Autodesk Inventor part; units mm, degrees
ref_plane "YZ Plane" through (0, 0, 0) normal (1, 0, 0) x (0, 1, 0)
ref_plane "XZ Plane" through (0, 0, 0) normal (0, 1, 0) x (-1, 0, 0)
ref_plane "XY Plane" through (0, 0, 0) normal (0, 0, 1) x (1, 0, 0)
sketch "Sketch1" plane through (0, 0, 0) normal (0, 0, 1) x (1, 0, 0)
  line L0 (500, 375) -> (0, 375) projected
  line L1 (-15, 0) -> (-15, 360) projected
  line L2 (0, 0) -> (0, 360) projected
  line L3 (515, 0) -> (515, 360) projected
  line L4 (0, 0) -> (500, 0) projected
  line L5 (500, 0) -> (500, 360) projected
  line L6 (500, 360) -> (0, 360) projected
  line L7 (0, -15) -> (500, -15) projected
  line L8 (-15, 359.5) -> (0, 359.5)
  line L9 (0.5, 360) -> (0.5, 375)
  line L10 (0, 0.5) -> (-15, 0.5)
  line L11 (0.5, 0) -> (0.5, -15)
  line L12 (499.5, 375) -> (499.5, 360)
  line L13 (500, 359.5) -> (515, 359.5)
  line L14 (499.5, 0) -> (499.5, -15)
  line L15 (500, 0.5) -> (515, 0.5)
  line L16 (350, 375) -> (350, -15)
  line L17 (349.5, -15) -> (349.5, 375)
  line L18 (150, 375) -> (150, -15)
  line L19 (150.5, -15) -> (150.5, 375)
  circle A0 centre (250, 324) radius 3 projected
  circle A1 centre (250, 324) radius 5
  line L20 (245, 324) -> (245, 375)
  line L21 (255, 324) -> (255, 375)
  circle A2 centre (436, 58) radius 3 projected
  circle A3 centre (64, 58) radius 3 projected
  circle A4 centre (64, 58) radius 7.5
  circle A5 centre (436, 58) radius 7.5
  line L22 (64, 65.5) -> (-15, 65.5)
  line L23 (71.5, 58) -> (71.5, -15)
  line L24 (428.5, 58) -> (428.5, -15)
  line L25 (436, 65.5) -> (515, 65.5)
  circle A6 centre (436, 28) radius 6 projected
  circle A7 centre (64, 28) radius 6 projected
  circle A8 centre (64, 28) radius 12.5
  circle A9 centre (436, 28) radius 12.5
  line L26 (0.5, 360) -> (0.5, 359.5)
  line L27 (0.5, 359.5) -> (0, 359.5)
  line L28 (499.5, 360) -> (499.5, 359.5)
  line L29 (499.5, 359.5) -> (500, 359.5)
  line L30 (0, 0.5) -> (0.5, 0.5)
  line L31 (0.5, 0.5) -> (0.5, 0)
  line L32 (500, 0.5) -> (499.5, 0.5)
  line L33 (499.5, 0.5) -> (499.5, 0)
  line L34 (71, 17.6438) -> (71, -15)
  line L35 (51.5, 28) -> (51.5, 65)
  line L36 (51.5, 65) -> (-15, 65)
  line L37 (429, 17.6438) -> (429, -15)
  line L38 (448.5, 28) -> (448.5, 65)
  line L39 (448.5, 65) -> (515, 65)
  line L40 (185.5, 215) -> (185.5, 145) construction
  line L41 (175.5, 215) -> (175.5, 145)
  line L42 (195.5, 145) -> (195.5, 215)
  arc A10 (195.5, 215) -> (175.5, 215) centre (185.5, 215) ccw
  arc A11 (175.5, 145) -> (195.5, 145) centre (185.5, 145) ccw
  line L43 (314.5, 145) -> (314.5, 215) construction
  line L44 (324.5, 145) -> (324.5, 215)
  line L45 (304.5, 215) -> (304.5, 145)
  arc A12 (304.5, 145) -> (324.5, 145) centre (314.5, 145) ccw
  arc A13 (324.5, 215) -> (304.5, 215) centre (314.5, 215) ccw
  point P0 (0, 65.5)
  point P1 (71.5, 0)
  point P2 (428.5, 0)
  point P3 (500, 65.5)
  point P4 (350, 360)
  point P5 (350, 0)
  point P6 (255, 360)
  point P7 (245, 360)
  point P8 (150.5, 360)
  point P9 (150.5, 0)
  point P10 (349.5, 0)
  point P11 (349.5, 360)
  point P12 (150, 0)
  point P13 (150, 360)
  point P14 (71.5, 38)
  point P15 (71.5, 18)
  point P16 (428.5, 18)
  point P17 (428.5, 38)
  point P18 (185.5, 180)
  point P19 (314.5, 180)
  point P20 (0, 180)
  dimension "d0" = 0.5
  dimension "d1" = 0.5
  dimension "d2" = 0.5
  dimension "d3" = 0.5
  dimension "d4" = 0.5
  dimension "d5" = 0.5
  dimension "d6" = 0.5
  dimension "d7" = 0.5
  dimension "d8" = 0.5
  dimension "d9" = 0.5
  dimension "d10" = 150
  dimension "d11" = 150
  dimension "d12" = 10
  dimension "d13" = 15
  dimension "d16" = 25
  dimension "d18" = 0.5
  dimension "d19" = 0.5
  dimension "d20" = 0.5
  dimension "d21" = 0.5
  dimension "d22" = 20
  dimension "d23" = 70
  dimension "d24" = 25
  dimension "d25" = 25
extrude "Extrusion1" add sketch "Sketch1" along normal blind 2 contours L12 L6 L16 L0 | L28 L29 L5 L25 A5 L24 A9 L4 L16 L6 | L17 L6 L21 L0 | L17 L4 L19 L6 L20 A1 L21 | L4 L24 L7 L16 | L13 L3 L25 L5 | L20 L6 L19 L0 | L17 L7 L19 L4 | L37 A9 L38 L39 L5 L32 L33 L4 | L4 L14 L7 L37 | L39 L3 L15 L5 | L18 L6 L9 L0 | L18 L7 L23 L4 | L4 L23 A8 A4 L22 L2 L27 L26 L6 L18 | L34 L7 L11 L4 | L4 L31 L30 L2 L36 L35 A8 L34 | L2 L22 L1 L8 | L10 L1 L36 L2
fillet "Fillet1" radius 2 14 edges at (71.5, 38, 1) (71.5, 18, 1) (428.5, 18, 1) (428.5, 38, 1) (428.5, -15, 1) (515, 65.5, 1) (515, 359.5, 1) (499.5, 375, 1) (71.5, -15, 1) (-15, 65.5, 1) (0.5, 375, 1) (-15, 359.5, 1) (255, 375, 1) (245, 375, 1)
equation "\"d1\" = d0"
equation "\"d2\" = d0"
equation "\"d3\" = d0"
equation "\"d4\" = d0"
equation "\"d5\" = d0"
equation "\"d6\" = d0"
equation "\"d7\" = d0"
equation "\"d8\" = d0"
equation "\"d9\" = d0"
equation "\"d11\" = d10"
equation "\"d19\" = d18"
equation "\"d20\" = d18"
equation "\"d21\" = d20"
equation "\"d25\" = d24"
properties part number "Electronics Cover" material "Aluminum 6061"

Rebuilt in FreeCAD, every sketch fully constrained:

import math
import FreeCAD as App
import Part
import Sketcher
from FreeCAD import Vector
Q = App.Units.Quantity


def edges_at(feature, points):
    """Names of the edges that pass closest to the given points."""
    edges = feature.Shape.Edges
    near = lambda p: min(range(len(edges)), key=lambda i: edges[i].distToShape(Part.Vertex(*p))[0])
    return sorted({f"Edge{near(p) + 1}" for p in points})

doc = App.newDocument("Part")
body = doc.addObject("PartDesign::Body", "Body")
body.AllowCompound = True

sketch1 = body.newObject("Sketcher::SketchObject", "Sketch")
sketch1.AttachmentSupport = (doc.getObject("XY_Plane"), [""])
sketch1.MapMode = "FlatFace"
sketch1.addGeometry(Part.LineSegment(Vector(499.5, 375, 0), Vector(350, 375, 0)), False)
sketch1.addGeometry(Part.LineSegment(Vector(350, 375, 0), Vector(350, -15, 0)), False)
sketch1.addGeometry(Part.LineSegment(Vector(350, -15, 0), Vector(428.5, -15, 0)), False)
sketch1.addGeometry(Part.LineSegment(Vector(428.5, -15, 0), Vector(428.5, 18, 0)), False)
sketch1.addGeometry(Part.ArcOfCircle(Part.Circle(Vector(436, 28, 0), Vector(0, 0, 1), 12.5), math.radians(126.869898), math.radians(233.130102)), False)
sketch1.addGeometry(Part.LineSegment(Vector(428.5, 38, 0), Vector(428.5, 58, 0)), False)
sketch1.addGeometry(Part.ArcOfCircle(Part.Circle(Vector(436, 58, 0), Vector(0, 0, 1), 7.5), math.radians(90), math.radians(180)), False)
sketch1.addGeometry(Part.LineSegment(Vector(436, 65.5, 0), Vector(515, 65.5, 0)), False)
sketch1.addGeometry(Part.LineSegment(Vector(515, 65.5, 0), Vector(515, 359.5, 0)), False)
sketch1.addGeometry(Part.LineSegment(Vector(515, 359.5, 0), Vector(499.5, 359.5, 0)), False)
sketch1.addGeometry(Part.LineSegment(Vector(499.5, 359.5, 0), Vector(499.5, 375, 0)), False)
sketch1.addGeometry(Part.LineSegment(Vector(349.5, 375, 0), Vector(255, 375, 0)), False)
sketch1.addGeometry(Part.LineSegment(Vector(255, 375, 0), Vector(255, 324, 0)), False)
sketch1.addGeometry(Part.ArcOfCircle(Part.Circle(Vector(250, 324, 0), Vector(0, 0, 1), 5), math.radians(180), math.radians(360)), False)
sketch1.addGeometry(Part.LineSegment(Vector(245, 324, 0), Vector(245, 375, 0)), False)
sketch1.addGeometry(Part.LineSegment(Vector(245, 375, 0), Vector(150.5, 375, 0)), False)
sketch1.addGeometry(Part.LineSegment(Vector(150.5, 375, 0), Vector(150.5, -15, 0)), False)
sketch1.addGeometry(Part.LineSegment(Vector(150.5, -15, 0), Vector(349.5, -15, 0)), False)
sketch1.addGeometry(Part.LineSegment(Vector(349.5, -15, 0), Vector(349.5, 375, 0)), False)
sketch1.addGeometry(Part.ArcOfCircle(Part.Circle(Vector(314.5, 145, 0), Vector(0, 0, 1), 10), math.radians(180), math.radians(360)), False)
sketch1.addGeometry(Part.LineSegment(Vector(304.5, 145, 0), Vector(304.5, 215, 0)), False)
sketch1.addGeometry(Part.ArcOfCircle(Part.Circle(Vector(314.5, 215, 0), Vector(0, 0, 1), 10), math.radians(0), math.radians(180)), False)
sketch1.addGeometry(Part.LineSegment(Vector(324.5, 215, 0), Vector(324.5, 145, 0)), False)
sketch1.addGeometry(Part.LineSegment(Vector(175.5, 145, 0), Vector(175.5, 215, 0)), False)
sketch1.addGeometry(Part.ArcOfCircle(Part.Circle(Vector(185.5, 215, 0), Vector(0, 0, 1), 10), math.radians(0), math.radians(180)), False)
sketch1.addGeometry(Part.LineSegment(Vector(195.5, 215, 0), Vector(195.5, 145, 0)), False)
sketch1.addGeometry(Part.ArcOfCircle(Part.Circle(Vector(185.5, 145, 0), Vector(0, 0, 1), 10), math.radians(180), math.radians(360)), False)
sketch1.addGeometry(Part.LineSegment(Vector(429, 17.6438, 0), Vector(429, -15, 0)), False)
sketch1.addGeometry(Part.LineSegment(Vector(429, -15, 0), Vector(499.5, -15, 0)), False)
sketch1.addGeometry(Part.LineSegment(Vector(499.5, -15, 0), Vector(499.5, 0.5, 0)), False)
sketch1.addGeometry(Part.LineSegment(Vector(499.5, 0.5, 0), Vector(515, 0.5, 0)), False)
sketch1.addGeometry(Part.LineSegment(Vector(515, 0.5, 0), Vector(515, 65, 0)), False)
sketch1.addGeometry(Part.LineSegment(Vector(515, 65, 0), Vector(448.5, 65, 0)), False)
sketch1.addGeometry(Part.LineSegment(Vector(448.5, 65, 0), Vector(448.5, 28, 0)), False)
sketch1.addGeometry(Part.ArcOfCircle(Part.Circle(Vector(436, 28, 0), Vector(0, 0, 1), 12.5), math.radians(-124.055689), math.radians(0)), False)
sketch1.addGeometry(Part.LineSegment(Vector(150, 375, 0), Vector(0.5, 375, 0)), False)
sketch1.addGeometry(Part.LineSegment(Vector(0.5, 375, 0), Vector(0.5, 359.5, 0)), False)
sketch1.addGeometry(Part.LineSegment(Vector(0.5, 359.5, 0), Vector(-15, 359.5, 0)), False)
sketch1.addGeometry(Part.LineSegment(Vector(-15, 359.5, 0), Vector(-15, 65.5, 0)), False)
sketch1.addGeometry(Part.LineSegment(Vector(-15, 65.5, 0), Vector(64, 65.5, 0)), False)
sketch1.addGeometry(Part.ArcOfCircle(Part.Circle(Vector(64, 58, 0), Vector(0, 0, 1), 7.5), math.radians(0), math.radians(90)), False)
sketch1.addGeometry(Part.LineSegment(Vector(71.5, 58, 0), Vector(71.5, 38, 0)), False)
sketch1.addGeometry(Part.ArcOfCircle(Part.Circle(Vector(64, 28, 0), Vector(0, 0, 1), 12.5), math.radians(-53.130102), math.radians(53.130102)), False)
sketch1.addGeometry(Part.LineSegment(Vector(71.5, 18, 0), Vector(71.5, -15, 0)), False)
sketch1.addGeometry(Part.LineSegment(Vector(71.5, -15, 0), Vector(150, -15, 0)), False)
sketch1.addGeometry(Part.LineSegment(Vector(150, -15, 0), Vector(150, 375, 0)), False)
sketch1.addGeometry(Part.LineSegment(Vector(71, -15, 0), Vector(71, 17.6438, 0)), False)
sketch1.addGeometry(Part.ArcOfCircle(Part.Circle(Vector(64, 28, 0), Vector(0, 0, 1), 12.5), math.radians(180), math.radians(304.055689)), False)
sketch1.addGeometry(Part.LineSegment(Vector(51.5, 28, 0), Vector(51.5, 65, 0)), False)
sketch1.addGeometry(Part.LineSegment(Vector(51.5, 65, 0), Vector(-15, 65, 0)), False)
sketch1.addGeometry(Part.LineSegment(Vector(-15, 65, 0), Vector(-15, 0.5, 0)), False)
sketch1.addGeometry(Part.LineSegment(Vector(-15, 0.5, 0), Vector(0.5, 0.5, 0)), False)
sketch1.addGeometry(Part.LineSegment(Vector(0.5, 0.5, 0), Vector(0.5, -15, 0)), False)
sketch1.addGeometry(Part.LineSegment(Vector(0.5, -15, 0), Vector(71, -15, 0)), False)
sketch1.addConstraint(Sketcher.Constraint("Coincident", 0, 2, 1, 1))
sketch1.addConstraint(Sketcher.Constraint("Coincident", 1, 2, 2, 1))
sketch1.addConstraint(Sketcher.Constraint("Coincident", 2, 2, 3, 1))
sketch1.addConstraint(Sketcher.Constraint("Coincident", 3, 2, 4, 2))
sketch1.addConstraint(Sketcher.Constraint("Coincident", 4, 1, 5, 1))
sketch1.addConstraint(Sketcher.Constraint("Tangent", 5, 2, 6, 2))
sketch1.addConstraint(Sketcher.Constraint("Tangent", 6, 1, 7, 1))
sketch1.addConstraint(Sketcher.Constraint("Coincident", 7, 2, 8, 1))
sketch1.addConstraint(Sketcher.Constraint("Coincident", 8, 2, 9, 1))
sketch1.addConstraint(Sketcher.Constraint("Coincident", 9, 2, 10, 1))
sketch1.addConstraint(Sketcher.Constraint("Coincident", 10, 2, 0, 1))
sketch1.addConstraint(Sketcher.Constraint("Coincident", 11, 2, 12, 1))
sketch1.addConstraint(Sketcher.Constraint("Tangent", 12, 2, 13, 2))
sketch1.addConstraint(Sketcher.Constraint("Tangent", 13, 1, 14, 1))
sketch1.addConstraint(Sketcher.Constraint("Coincident", 14, 2, 15, 1))
sketch1.addConstraint(Sketcher.Constraint("Coincident", 15, 2, 16, 1))
sketch1.addConstraint(Sketcher.Constraint("Coincident", 16, 2, 17, 1))
sketch1.addConstraint(Sketcher.Constraint("Coincident", 17, 2, 18, 1))
sketch1.addConstraint(Sketcher.Constraint("Coincident", 18, 2, 11, 1))
sketch1.addConstraint(Sketcher.Constraint("Tangent", 19, 1, 20, 1))
sketch1.addConstraint(Sketcher.Constraint("Tangent", 20, 2, 21, 2))
sketch1.addConstraint(Sketcher.Constraint("Tangent", 21, 1, 22, 1))
sketch1.addConstraint(Sketcher.Constraint("Tangent", 22, 2, 19, 2))
sketch1.addConstraint(Sketcher.Constraint("Tangent", 23, 2, 24, 2))
sketch1.addConstraint(Sketcher.Constraint("Tangent", 24, 1, 25, 1))
sketch1.addConstraint(Sketcher.Constraint("Tangent", 25, 2, 26, 2))
sketch1.addConstraint(Sketcher.Constraint("Tangent", 26, 1, 23, 1))
sketch1.addConstraint(Sketcher.Constraint("Coincident", 27, 2, 28, 1))
sketch1.addConstraint(Sketcher.Constraint("Coincident", 28, 2, 29, 1))
sketch1.addConstraint(Sketcher.Constraint("Coincident", 29, 2, 30, 1))
sketch1.addConstraint(Sketcher.Constraint("Coincident", 30, 2, 31, 1))
sketch1.addConstraint(Sketcher.Constraint("Coincident", 31, 2, 32, 1))
sketch1.addConstraint(Sketcher.Constraint("Coincident", 32, 2, 33, 1))
sketch1.addConstraint(Sketcher.Constraint("Tangent", 33, 2, 34, 2))
sketch1.addConstraint(Sketcher.Constraint("Coincident", 34, 1, 27, 1))
sketch1.addConstraint(Sketcher.Constraint("Coincident", 35, 2, 36, 1))
sketch1.addConstraint(Sketcher.Constraint("Coincident", 36, 2, 37, 1))
sketch1.addConstraint(Sketcher.Constraint("Coincident", 37, 2, 38, 1))
sketch1.addConstraint(Sketcher.Constraint("Coincident", 38, 2, 39, 1))
sketch1.addConstraint(Sketcher.Constraint("Tangent", 39, 2, 40, 2))
sketch1.addConstraint(Sketcher.Constraint("Tangent", 40, 1, 41, 1))
sketch1.addConstraint(Sketcher.Constraint("Coincident", 41, 2, 42, 2))
sketch1.addConstraint(Sketcher.Constraint("Coincident", 42, 1, 43, 1))
sketch1.addConstraint(Sketcher.Constraint("Coincident", 43, 2, 44, 1))
sketch1.addConstraint(Sketcher.Constraint("Coincident", 44, 2, 45, 1))
sketch1.addConstraint(Sketcher.Constraint("Coincident", 45, 2, 35, 1))
sketch1.addConstraint(Sketcher.Constraint("Coincident", 46, 2, 47, 2))
sketch1.addConstraint(Sketcher.Constraint("Tangent", 47, 1, 48, 1))
sketch1.addConstraint(Sketcher.Constraint("Coincident", 48, 2, 49, 1))
sketch1.addConstraint(Sketcher.Constraint("Coincident", 49, 2, 50, 1))
sketch1.addConstraint(Sketcher.Constraint("Coincident", 50, 2, 51, 1))
sketch1.addConstraint(Sketcher.Constraint("Coincident", 51, 2, 52, 1))
sketch1.addConstraint(Sketcher.Constraint("Coincident", 52, 2, 53, 1))
sketch1.addConstraint(Sketcher.Constraint("Coincident", 53, 2, 46, 1))
sketch1.addConstraint(Sketcher.Constraint("Horizontal", 0))
sketch1.addConstraint(Sketcher.Constraint("Vertical", 1))
sketch1.addConstraint(Sketcher.Constraint("Horizontal", 2))
sketch1.addConstraint(Sketcher.Constraint("Vertical", 3))
sketch1.addConstraint(Sketcher.Constraint("Vertical", 5))
sketch1.addConstraint(Sketcher.Constraint("Horizontal", 7))
sketch1.addConstraint(Sketcher.Constraint("Vertical", 8))
sketch1.addConstraint(Sketcher.Constraint("Horizontal", 9))
sketch1.addConstraint(Sketcher.Constraint("Vertical", 10))
sketch1.addConstraint(Sketcher.Constraint("Horizontal", 11))
sketch1.addConstraint(Sketcher.Constraint("Vertical", 12))
sketch1.addConstraint(Sketcher.Constraint("Vertical", 14))
sketch1.addConstraint(Sketcher.Constraint("Horizontal", 15))
sketch1.addConstraint(Sketcher.Constraint("Vertical", 16))
sketch1.addConstraint(Sketcher.Constraint("Horizontal", 17))
sketch1.addConstraint(Sketcher.Constraint("Vertical", 18))
sketch1.addConstraint(Sketcher.Constraint("Vertical", 20))
sketch1.addConstraint(Sketcher.Constraint("Vertical", 22))
sketch1.addConstraint(Sketcher.Constraint("Vertical", 23))
sketch1.addConstraint(Sketcher.Constraint("Vertical", 25))
sketch1.addConstraint(Sketcher.Constraint("Vertical", 27))
sketch1.addConstraint(Sketcher.Constraint("Horizontal", 28))
sketch1.addConstraint(Sketcher.Constraint("Vertical", 29))
sketch1.addConstraint(Sketcher.Constraint("Horizontal", 30))
sketch1.addConstraint(Sketcher.Constraint("Vertical", 31))
sketch1.addConstraint(Sketcher.Constraint("Horizontal", 32))
sketch1.addConstraint(Sketcher.Constraint("Vertical", 33))
sketch1.addConstraint(Sketcher.Constraint("Horizontal", 35))
sketch1.addConstraint(Sketcher.Constraint("Vertical", 36))
sketch1.addConstraint(Sketcher.Constraint("Horizontal", 37))
sketch1.addConstraint(Sketcher.Constraint("Vertical", 38))
sketch1.addConstraint(Sketcher.Constraint("Horizontal", 39))
sketch1.addConstraint(Sketcher.Constraint("Vertical", 41))
sketch1.addConstraint(Sketcher.Constraint("Vertical", 43))
sketch1.addConstraint(Sketcher.Constraint("Horizontal", 44))
sketch1.addConstraint(Sketcher.Constraint("Vertical", 45))
sketch1.addConstraint(Sketcher.Constraint("Vertical", 46))
sketch1.addConstraint(Sketcher.Constraint("Vertical", 48))
sketch1.addConstraint(Sketcher.Constraint("Horizontal", 49))
sketch1.addConstraint(Sketcher.Constraint("Vertical", 50))
sketch1.addConstraint(Sketcher.Constraint("Horizontal", 51))
sketch1.addConstraint(Sketcher.Constraint("Vertical", 52))
sketch1.addConstraint(Sketcher.Constraint("Horizontal", 53))
sketch1.addConstraint(Sketcher.Constraint("Coincident", 34, 3, 4, 3))
sketch1.addConstraint(Sketcher.Constraint("Coincident", 47, 3, 42, 3))
sketch1.addConstraint(Sketcher.Constraint("Equal", 21, 24))
sketch1.addConstraint(Sketcher.Constraint("Equal", 4, 34))
sketch1.addConstraint(Sketcher.Constraint("Equal", 6, 40))
sketch1.addConstraint(Sketcher.Constraint("Equal", 34, 42))
sketch1.addConstraint(Sketcher.Constraint("Equal", 42, 47))
sketch1.addConstraint(Sketcher.Constraint("Horizontal", 21, 3, 24, 3))
sketch1.addConstraint(Sketcher.Constraint("Horizontal", 19, 3, 26, 3))
sketch1.addConstraint(Sketcher.Constraint("Horizontal", 6, 3, 40, 3))
sketch1.addConstraint(Sketcher.Constraint("Horizontal", 34, 3, 42, 3))
sketch1.addConstraint(Sketcher.Constraint("Horizontal", 10, 2, 11, 2))
sketch1.addConstraint(Sketcher.Constraint("Horizontal", 11, 2, 14, 2))
sketch1.addConstraint(Sketcher.Constraint("Horizontal", 2, 2, 16, 2))
sketch1.addConstraint(Sketcher.Constraint("Horizontal", 17, 2, 27, 2))
sketch1.addConstraint(Sketcher.Constraint("Horizontal", 18, 2, 35, 2))
sketch1.addConstraint(Sketcher.Constraint("Horizontal", 9, 2, 36, 2))
sketch1.addConstraint(Sketcher.Constraint("Horizontal", 4, 1, 41, 2))
sketch1.addConstraint(Sketcher.Constraint("Horizontal", 3, 2, 42, 1))
sketch1.addConstraint(Sketcher.Constraint("Horizontal", 28, 2, 43, 2))
sketch1.addConstraint(Sketcher.Constraint("Horizontal", 34, 1, 46, 2))
sketch1.addConstraint(Sketcher.Constraint("Horizontal", 32, 2, 48, 2))
sketch1.addConstraint(Sketcher.Constraint("Horizontal", 30, 2, 50, 2))
sketch1.addConstraint(Sketcher.Constraint("Horizontal", 44, 2, 52, 2))
sketch1.addConstraint(Sketcher.Constraint("Vertical", 4, 3, 6, 3))
sketch1.addConstraint(Sketcher.Constraint("Vertical", 3, 2, 4, 1))
sketch1.addConstraint(Sketcher.Constraint("Vertical", 10, 2, 28, 2))
sketch1.addConstraint(Sketcher.Constraint("Vertical", 8, 2, 30, 2))
sketch1.addConstraint(Sketcher.Constraint("Vertical", 38, 2, 49, 2))
sketch1.addConstraint(Sketcher.Constraint("Vertical", 36, 2, 51, 2))
sketch1.addConstraint(Sketcher.Constraint("Equal", 11, 15))
sketch1.addConstraint(Sketcher.Constraint("Equal", 0, 35))
sketch1.addConstraint(Sketcher.Constraint("Equal", 30, 37))
sketch1.addConstraint(Sketcher.Constraint("Equal", 7, 39))
sketch1.addConstraint(Sketcher.Constraint("Equal", 51, 10))
sketch1.addConstraint(Sketcher.Constraint("Equal", 10, 29))
sketch1.addConstraint(Sketcher.Constraint("Radius", 13, Q("5 mm")))
sketch1.addConstraint(Sketcher.Constraint("Radius", 19, Q("10 mm")))
sketch1.addConstraint(Sketcher.Constraint("Radius", 4, Q("12.5 mm")))
sketch1.addConstraint(Sketcher.Constraint("Radius", 6, Q("7.5 mm")))
sketch1.addConstraint(Sketcher.Constraint("DistanceY", 5, 1, 5, 2, Q("20 mm")))
sketch1.addConstraint(Sketcher.Constraint("DistanceY", 20, 1, 20, 2, Q("70 mm")))
sketch1.addConstraint(Sketcher.Constraint("DistanceY", 1, 2, -1, 1, Q("15 mm")))
sketch1.addConstraint(Sketcher.Constraint("DistanceX", 37, 2, -1, 1, Q("15 mm")))
sketch1.addConstraint(Sketcher.Constraint("DistanceX", -1, 1, 44, 2, Q("150 mm")))
sketch1.addConstraint(Sketcher.Constraint("DistanceY", -1, 1, 29, 2, Q("0.5 mm")))
sketch1.addConstraint(Sketcher.Constraint("DistanceX", 7, 1, 7, 2, Q("79 mm")))
sketch1.addConstraint(Sketcher.Constraint("DistanceX", 17, 1, 17, 2, Q("199 mm")))
sketch1.addConstraint(Sketcher.Constraint("DistanceY", 1, 2, 1, 1, Q("390 mm")))
sketch1.addConstraint(Sketcher.Constraint("DistanceY", 3, 1, 3, 2, Q("33 mm")))
sketch1.addConstraint(Sketcher.Constraint("DistanceY", 12, 2, 12, 1, Q("51 mm")))
sketch1.addConstraint(Sketcher.Constraint("DistanceY", 33, 2, 33, 1, Q("37 mm")))
sketch1.addConstraint(Sketcher.Constraint("DistanceX", 28, 1, 28, 2, Q("70.5 mm")))
sketch1.addConstraint(Sketcher.Constraint("DistanceX", -1, 1, 4, 3, Q("436 mm")))
sketch1.addConstraint(Sketcher.Constraint("DistanceX", -1, 1, 13, 3, Q("250 mm")))
sketch1.addConstraint(Sketcher.Constraint("DistanceY", -1, 1, 19, 3, Q("145 mm")))
sketch1.addConstraint(Sketcher.Constraint("DistanceX", -1, 1, 19, 3, Q("314.5 mm")))
sketch1.addConstraint(Sketcher.Constraint("DistanceX", -1, 1, 24, 3, Q("185.5 mm")))
pad1 = body.newObject("PartDesign::Pad", "Pad")
pad1.Profile = sketch1
pad1.Length = 2
doc.recompute()

fillet = body.newObject("PartDesign::Fillet", "Fillet")
fillet.Base = (pad1, edges_at(pad1, [
    (71.5, 38, 1),
    (71.5, 18, 1),
    (428.5, 18, 1),
    (428.5, 38, 1),
    (428.5, -15, 1),
    (515, 65.5, 1),
    (515, 359.5, 1),
    (499.5, 375, 1),
    (71.5, -15, 1),
    (-15, 65.5, 1),
    (0.5, 375, 1),
    (-15, 359.5, 1),
    (255, 375, 1),
    (245, 375, 1),
]))
fillet.Radius = 2

doc.recompute()
